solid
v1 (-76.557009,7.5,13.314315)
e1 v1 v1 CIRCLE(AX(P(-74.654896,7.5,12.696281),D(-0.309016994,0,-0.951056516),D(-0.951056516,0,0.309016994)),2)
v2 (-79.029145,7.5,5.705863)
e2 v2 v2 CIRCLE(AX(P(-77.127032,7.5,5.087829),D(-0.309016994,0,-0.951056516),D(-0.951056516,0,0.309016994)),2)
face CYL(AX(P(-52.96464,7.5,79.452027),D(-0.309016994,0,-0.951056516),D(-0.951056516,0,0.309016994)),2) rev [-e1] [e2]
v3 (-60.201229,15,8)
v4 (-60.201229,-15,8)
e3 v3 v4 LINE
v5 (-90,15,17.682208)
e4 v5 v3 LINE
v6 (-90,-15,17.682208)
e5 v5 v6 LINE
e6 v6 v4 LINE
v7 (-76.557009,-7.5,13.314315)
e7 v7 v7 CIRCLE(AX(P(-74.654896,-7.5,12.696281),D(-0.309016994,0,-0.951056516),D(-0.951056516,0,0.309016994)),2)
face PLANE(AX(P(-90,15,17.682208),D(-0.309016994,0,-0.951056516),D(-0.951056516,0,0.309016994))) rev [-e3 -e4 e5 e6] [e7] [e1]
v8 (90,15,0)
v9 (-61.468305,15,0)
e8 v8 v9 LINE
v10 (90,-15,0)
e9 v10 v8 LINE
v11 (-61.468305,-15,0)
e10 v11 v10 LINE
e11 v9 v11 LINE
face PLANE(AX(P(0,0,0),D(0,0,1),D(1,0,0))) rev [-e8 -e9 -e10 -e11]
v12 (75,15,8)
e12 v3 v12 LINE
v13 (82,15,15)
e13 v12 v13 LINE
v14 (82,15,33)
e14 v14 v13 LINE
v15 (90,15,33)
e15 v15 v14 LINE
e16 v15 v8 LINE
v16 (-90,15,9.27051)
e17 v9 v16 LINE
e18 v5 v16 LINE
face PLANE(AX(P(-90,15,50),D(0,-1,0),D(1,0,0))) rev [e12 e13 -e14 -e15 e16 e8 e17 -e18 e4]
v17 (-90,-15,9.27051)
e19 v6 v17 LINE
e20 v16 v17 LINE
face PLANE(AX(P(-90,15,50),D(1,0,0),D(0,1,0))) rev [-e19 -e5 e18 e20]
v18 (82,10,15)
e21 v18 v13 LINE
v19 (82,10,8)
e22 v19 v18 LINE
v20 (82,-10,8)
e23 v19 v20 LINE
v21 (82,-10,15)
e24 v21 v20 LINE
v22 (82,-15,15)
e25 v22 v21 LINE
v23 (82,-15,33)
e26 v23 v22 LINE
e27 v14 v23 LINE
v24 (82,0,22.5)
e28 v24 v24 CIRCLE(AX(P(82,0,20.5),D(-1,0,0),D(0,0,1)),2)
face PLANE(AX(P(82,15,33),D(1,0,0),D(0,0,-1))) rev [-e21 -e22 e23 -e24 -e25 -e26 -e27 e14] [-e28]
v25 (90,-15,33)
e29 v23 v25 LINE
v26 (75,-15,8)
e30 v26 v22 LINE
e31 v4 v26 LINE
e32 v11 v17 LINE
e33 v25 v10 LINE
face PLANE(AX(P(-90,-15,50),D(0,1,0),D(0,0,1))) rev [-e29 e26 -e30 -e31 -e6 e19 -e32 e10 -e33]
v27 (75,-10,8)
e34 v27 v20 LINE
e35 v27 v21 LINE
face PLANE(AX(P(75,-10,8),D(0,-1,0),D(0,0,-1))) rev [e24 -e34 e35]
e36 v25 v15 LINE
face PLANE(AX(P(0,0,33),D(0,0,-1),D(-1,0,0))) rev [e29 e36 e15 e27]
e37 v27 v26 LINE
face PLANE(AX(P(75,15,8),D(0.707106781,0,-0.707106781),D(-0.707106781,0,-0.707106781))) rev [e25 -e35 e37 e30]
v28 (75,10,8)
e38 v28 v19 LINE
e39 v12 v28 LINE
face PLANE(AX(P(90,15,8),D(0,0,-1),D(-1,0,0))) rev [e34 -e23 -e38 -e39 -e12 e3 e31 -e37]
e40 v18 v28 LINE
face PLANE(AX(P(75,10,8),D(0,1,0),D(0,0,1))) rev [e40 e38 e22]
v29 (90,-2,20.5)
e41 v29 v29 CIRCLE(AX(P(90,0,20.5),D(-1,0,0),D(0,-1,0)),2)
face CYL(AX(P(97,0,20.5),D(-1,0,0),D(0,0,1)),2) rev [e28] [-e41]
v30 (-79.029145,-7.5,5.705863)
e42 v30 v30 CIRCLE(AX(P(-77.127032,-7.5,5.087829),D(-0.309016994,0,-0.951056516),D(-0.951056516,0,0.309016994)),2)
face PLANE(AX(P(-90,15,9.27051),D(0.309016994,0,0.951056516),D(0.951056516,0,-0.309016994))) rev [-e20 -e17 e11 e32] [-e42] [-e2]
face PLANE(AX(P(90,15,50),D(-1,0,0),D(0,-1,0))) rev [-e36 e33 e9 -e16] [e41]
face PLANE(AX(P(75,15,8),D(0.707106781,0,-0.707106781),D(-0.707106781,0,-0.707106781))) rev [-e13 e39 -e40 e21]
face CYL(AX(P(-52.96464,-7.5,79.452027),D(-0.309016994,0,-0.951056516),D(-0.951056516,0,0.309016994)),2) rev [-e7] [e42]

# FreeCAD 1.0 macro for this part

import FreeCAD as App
import Part
import Sketcher
Q = App.Units.Quantity

doc = App.newDocument("Part")
body = doc.addObject("PartDesign::Body", "Body")

# Sketch on XY plane
sketch1 = doc.addObject("Sketcher::SketchObject", "Sketch")
body.addObject(sketch1)
sketch1.AttachmentSupport = (doc.XY_Plane, [""])
sketch1.MapMode = "FlatFace"
sketch1.addGeometry(Part.LineSegment(App.Vector(-90, 15, 0), App.Vector(-90, -15, 0)), False)
sketch1.addGeometry(Part.LineSegment(App.Vector(-90, -15, 0), App.Vector(90, -15, 0)), False)
sketch1.addGeometry(Part.LineSegment(App.Vector(90, -15, 0), App.Vector(90, 15, 0)), False)
sketch1.addGeometry(Part.LineSegment(App.Vector(90, 15, 0), App.Vector(-90, 15, 0)), False)
sketch1.addConstraint(Sketcher.Constraint("Coincident", 0, 2, 1, 1))
sketch1.addConstraint(Sketcher.Constraint("Coincident", 1, 2, 2, 1))
sketch1.addConstraint(Sketcher.Constraint("Coincident", 2, 2, 3, 1))
sketch1.addConstraint(Sketcher.Constraint("Coincident", 3, 2, 0, 1))
sketch1.addConstraint(Sketcher.Constraint("Vertical", 0))
sketch1.addConstraint(Sketcher.Constraint("Horizontal", 1))
sketch1.addConstraint(Sketcher.Constraint("Vertical", 2))
sketch1.addConstraint(Sketcher.Constraint("Horizontal", 3))
sketch1.addConstraint(Sketcher.Constraint("Symmetric", 0, 2, 2, 2, -1, 1))
sketch1.addConstraint(Sketcher.Constraint("DistanceX", 1, 1, 1, 2, Q("180 mm")))
sketch1.addConstraint(Sketcher.Constraint("DistanceY", 0, 2, 0, 1, Q("30 mm")))
pad1 = doc.addObject("PartDesign::Pad", "Pad")
body.addObject(pad1)
pad1.Profile = sketch1
pad1.Length = 50

# Sketch on XZ plane
sketch2 = doc.addObject("Sketcher::SketchObject", "Sketch001")
body.addObject(sketch2)
sketch2.AttachmentSupport = (doc.XZ_Plane, [""])
sketch2.MapMode = "FlatFace"
sketch2.AttachmentOffset = App.Placement(App.Vector(0, 0, 15), App.Rotation())
sketch2.addGeometry(Part.LineSegment(App.Vector(-61.468305, 0, 0), App.Vector(-90, 9.27051, 0)), False)
sketch2.addGeometry(Part.LineSegment(App.Vector(-90, 9.27051, 0), App.Vector(-90, 0, 0)), False)
sketch2.addGeometry(Part.LineSegment(App.Vector(-90, 0, 0), App.Vector(-61.468305, 0, 0)), False)
sketch2.addConstraint(Sketcher.Constraint("Coincident", 0, 2, 1, 1))
sketch2.addConstraint(Sketcher.Constraint("Coincident", 1, 2, 2, 1))
sketch2.addConstraint(Sketcher.Constraint("Coincident", 2, 2, 0, 1))
sketch2.addConstraint(Sketcher.Constraint("Vertical", 1))
sketch2.addConstraint(Sketcher.Constraint("Horizontal", 2))
sketch2.addConstraint(Sketcher.Constraint("PointOnObject", 1, 2, -1))
sketch2.addConstraint(Sketcher.Constraint("Angle", 0, Q("162 deg")))
sketch2.addConstraint(Sketcher.Constraint("Distance", 0, Q("30 mm")))
sketch2.addConstraint(Sketcher.Constraint("DistanceX", 0, 2, -1, 1, Q("90 mm")))
pocket1 = doc.addObject("PartDesign::Pocket", "Pocket")
body.addObject(pocket1)
pocket1.Profile = sketch2
pocket1.Type = "ThroughAll"

# Sketch on XZ plane
sketch3 = doc.addObject("Sketcher::SketchObject", "Sketch002")
body.addObject(sketch3)
sketch3.AttachmentSupport = (doc.XZ_Plane, [""])
sketch3.MapMode = "FlatFace"
sketch3.AttachmentOffset = App.Placement(App.Vector(0, 0, 15), App.Rotation())
sketch3.addGeometry(Part.LineSegment(App.Vector(-90, 17.682208, 0), App.Vector(-60.201229, 8, 0)), False)
sketch3.addGeometry(Part.LineSegment(App.Vector(-60.201229, 8, 0), App.Vector(90, 8, 0)), False)
sketch3.addGeometry(Part.LineSegment(App.Vector(90, 8, 0), App.Vector(90, 50, 0)), False)
sketch3.addGeometry(Part.LineSegment(App.Vector(90, 50, 0), App.Vector(-90, 50, 0)), False)
sketch3.addGeometry(Part.LineSegment(App.Vector(-90, 50, 0), App.Vector(-90, 17.682208, 0)), False)
sketch3.addConstraint(Sketcher.Constraint("Coincident", 0, 2, 1, 1))
sketch3.addConstraint(Sketcher.Constraint("Coincident", 1, 2, 2, 1))
sketch3.addConstraint(Sketcher.Constraint("Coincident", 2, 2, 3, 1))
sketch3.addConstraint(Sketcher.Constraint("Coincident", 3, 2, 4, 1))
sketch3.addConstraint(Sketcher.Constraint("Coincident", 4, 2, 0, 1))
sketch3.addConstraint(Sketcher.Constraint("Horizontal", 1))
sketch3.addConstraint(Sketcher.Constraint("Vertical", 2))
sketch3.addConstraint(Sketcher.Constraint("Horizontal", 3))
sketch3.addConstraint(Sketcher.Constraint("Vertical", 4))
sketch3.addConstraint(Sketcher.Constraint("DistanceX", 3, 2, 3, 1, Q("180 mm")))
sketch3.addConstraint(Sketcher.Constraint("DistanceY", 2, 1, 2, 2, Q("42 mm")))
sketch3.addConstraint(Sketcher.Constraint("Angle", 0, Q("-18 deg")))
sketch3.addConstraint(Sketcher.Constraint("DistanceY", -1, 1, 0, 2, Q("8 mm")))
sketch3.addConstraint(Sketcher.Constraint("DistanceX", -1, 1, 1, 2, Q("90 mm")))
sketch3.addConstraint(Sketcher.Constraint("DistanceX", 1, 1, 1, 2, Q("150.201229 mm")))
pocket2 = doc.addObject("PartDesign::Pocket", "Pocket001")
body.addObject(pocket2)
pocket2.Profile = sketch3
pocket2.Type = "ThroughAll"

# Sketch on XY plane
sketch4 = doc.addObject("Sketcher::SketchObject", "Sketch003")
body.addObject(sketch4)
sketch4.AttachmentSupport = (doc.XY_Plane, [""])
sketch4.MapMode = "FlatFace"
sketch4.AttachmentOffset = App.Placement(App.Vector(0, 0, 8), App.Rotation())
sketch4.addGeometry(Part.LineSegment(App.Vector(82, 15, 0), App.Vector(82, -15, 0)), False)
sketch4.addGeometry(Part.LineSegment(App.Vector(82, -15, 0), App.Vector(90, -15, 0)), False)
sketch4.addGeometry(Part.LineSegment(App.Vector(90, -15, 0), App.Vector(90, 15, 0)), False)
sketch4.addGeometry(Part.LineSegment(App.Vector(90, 15, 0), App.Vector(82, 15, 0)), False)
sketch4.addConstraint(Sketcher.Constraint("Coincident", 0, 2, 1, 1))
sketch4.addConstraint(Sketcher.Constraint("Coincident", 1, 2, 2, 1))
sketch4.addConstraint(Sketcher.Constraint("Coincident", 2, 2, 3, 1))
sketch4.addConstraint(Sketcher.Constraint("Coincident", 3, 2, 0, 1))
sketch4.addConstraint(Sketcher.Constraint("Vertical", 0))
sketch4.addConstraint(Sketcher.Constraint("Horizontal", 1))
sketch4.addConstraint(Sketcher.Constraint("Vertical", 2))
sketch4.addConstraint(Sketcher.Constraint("Horizontal", 3))
sketch4.addConstraint(Sketcher.Constraint("DistanceX", 1, 1, 1, 2, Q("8 mm")))
sketch4.addConstraint(Sketcher.Constraint("DistanceY", 0, 2, 0, 1, Q("30 mm")))
sketch4.addConstraint(Sketcher.Constraint("DistanceX", -1, 1, 0, 2, Q("82 mm")))
sketch4.addConstraint(Sketcher.Constraint("DistanceY", 0, 2, -1, 1, Q("15 mm")))
pad2 = doc.addObject("PartDesign::Pad", "Pad001")
body.addObject(pad2)
pad2.Profile = sketch4
pad2.Length = 25

# Sketch on YZ plane
sketch5 = doc.addObject("Sketcher::SketchObject", "Sketch004")
body.addObject(sketch5)
sketch5.AttachmentSupport = (doc.YZ_Plane, [""])
sketch5.MapMode = "FlatFace"
sketch5.AttachmentOffset = App.Placement(App.Vector(0, 0, 82), App.Rotation())
sketch5.addGeometry(Part.LineSegment(App.Vector(-10, 8, 0), App.Vector(-15, 8, 0)), False)
sketch5.addGeometry(Part.LineSegment(App.Vector(-15, 8, 0), App.Vector(-15, 15, 0)), False)
sketch5.addGeometry(Part.LineSegment(App.Vector(-15, 15, 0), App.Vector(-10, 15, 0)), False)
sketch5.addGeometry(Part.LineSegment(App.Vector(-10, 15, 0), App.Vector(-10, 8, 0)), False)
sketch5.addGeometry(Part.LineSegment(App.Vector(15, 8, 0), App.Vector(10, 8, 0)), False)
sketch5.addGeometry(Part.LineSegment(App.Vector(10, 8, 0), App.Vector(10, 15, 0)), False)
sketch5.addGeometry(Part.LineSegment(App.Vector(10, 15, 0), App.Vector(15, 15, 0)), False)
sketch5.addGeometry(Part.LineSegment(App.Vector(15, 15, 0), App.Vector(15, 8, 0)), False)
sketch5.addConstraint(Sketcher.Constraint("Coincident", 0, 2, 1, 1))
sketch5.addConstraint(Sketcher.Constraint("Coincident", 1, 2, 2, 1))
sketch5.addConstraint(Sketcher.Constraint("Coincident", 2, 2, 3, 1))
sketch5.addConstraint(Sketcher.Constraint("Coincident", 3, 2, 0, 1))
sketch5.addConstraint(Sketcher.Constraint("Coincident", 4, 2, 5, 1))
sketch5.addConstraint(Sketcher.Constraint("Coincident", 5, 2, 6, 1))
sketch5.addConstraint(Sketcher.Constraint("Coincident", 6, 2, 7, 1))
sketch5.addConstraint(Sketcher.Constraint("Coincident", 7, 2, 4, 1))
sketch5.addConstraint(Sketcher.Constraint("Horizontal", 0))
sketch5.addConstraint(Sketcher.Constraint("Vertical", 1))
sketch5.addConstraint(Sketcher.Constraint("Horizontal", 2))
sketch5.addConstraint(Sketcher.Constraint("Vertical", 3))
sketch5.addConstraint(Sketcher.Constraint("Horizontal", 4))
sketch5.addConstraint(Sketcher.Constraint("Vertical", 5))
sketch5.addConstraint(Sketcher.Constraint("Horizontal", 6))
sketch5.addConstraint(Sketcher.Constraint("Vertical", 7))
sketch5.addConstraint(Sketcher.Constraint("Symmetric", 3, 2, 4, 2, -2))
sketch5.addConstraint(Sketcher.Constraint("Symmetric", 1, 2, 6, 2, -2))
sketch5.addConstraint(Sketcher.Constraint("DistanceX", 0, 2, 0, 1, Q("5 mm")))
sketch5.addConstraint(Sketcher.Constraint("DistanceY", 1, 1, 1, 2, Q("7 mm")))
sketch5.addConstraint(Sketcher.Constraint("DistanceX", 0, 2, -1, 1, Q("15 mm")))
sketch5.addConstraint(Sketcher.Constraint("DistanceY", -1, 1, 0, 2, Q("8 mm")))
pad3 = doc.addObject("PartDesign::Pad", "Pad002")
body.addObject(pad3)
pad3.Profile = sketch5
pad3.Length = 7
pad3.Reversed = True

# Sketch on XZ plane
sketch6 = doc.addObject("Sketcher::SketchObject", "Sketch005")
body.addObject(sketch6)
sketch6.AttachmentSupport = (doc.XZ_Plane, [""])
sketch6.MapMode = "FlatFace"
sketch6.AttachmentOffset = App.Placement(App.Vector(0, 0, 15), App.Rotation())
sketch6.addGeometry(Part.LineSegment(App.Vector(75, 8, 0), App.Vector(82, 15, 0)), False)
sketch6.addGeometry(Part.LineSegment(App.Vector(82, 15, 0), App.Vector(75, 15, 0)), False)
sketch6.addGeometry(Part.LineSegment(App.Vector(75, 15, 0), App.Vector(75, 8, 0)), False)
sketch6.addConstraint(Sketcher.Constraint("Coincident", 0, 2, 1, 1))
sketch6.addConstraint(Sketcher.Constraint("Coincident", 1, 2, 2, 1))
sketch6.addConstraint(Sketcher.Constraint("Coincident", 2, 2, 0, 1))
sketch6.addConstraint(Sketcher.Constraint("Horizontal", 1))
sketch6.addConstraint(Sketcher.Constraint("Vertical", 2))
sketch6.addConstraint(Sketcher.Constraint("Equal", 1, 2))
sketch6.addConstraint(Sketcher.Constraint("DistanceX", 1, 2, 1, 1, Q("7 mm")))
sketch6.addConstraint(Sketcher.Constraint("DistanceX", -1, 1, 0, 2, Q("82 mm")))
sketch6.addConstraint(Sketcher.Constraint("DistanceY", -1, 1, 0, 2, Q("15 mm")))
pocket3 = doc.addObject("PartDesign::Pocket", "Pocket002")
body.addObject(pocket3)
pocket3.Profile = sketch6
pocket3.Type = "ThroughAll"

# Sketch on YZ plane
sketch7 = doc.addObject("Sketcher::SketchObject", "Sketch006")
body.addObject(sketch7)
sketch7.AttachmentSupport = (doc.YZ_Plane, [""])
sketch7.MapMode = "FlatFace"
sketch7.AttachmentOffset = App.Placement(App.Vector(0, 0, 82), App.Rotation())
sketch7.addGeometry(Part.Circle(App.Vector(0, 20.5, 0), App.Vector(0, 0, 1), 2), False)
sketch7.addConstraint(Sketcher.Constraint("PointOnObject", 0, 3, -2))
sketch7.addConstraint(Sketcher.Constraint("Diameter", 0, Q("4 mm")))
sketch7.addConstraint(Sketcher.Constraint("DistanceY", -1, 1, 0, 3, Q("20.5 mm")))
pocket4 = doc.addObject("PartDesign::Pocket", "Pocket003")
body.addObject(pocket4)
pocket4.Profile = sketch7
pocket4.Length = 15
pocket4.Reversed = True

# Sketch on an angled plane
sketch8 = doc.addObject("Sketcher::SketchObject", "Sketch007")
body.addObject(sketch8)
sketch8.Placement = App.Placement(App.Vector(-5.869701, 0, -18.065081), App.Rotation(App.Vector(-0.951056516, 0, 0.309016994), App.Vector(0, 0.999999999, 0), App.Vector(-0.309016994, 0, -0.951056516), "ZXY"))
sketch8.addGeometry(Part.Circle(App.Vector(74.924392, 7.5, 0), App.Vector(0, 0, 1), 2), False)
sketch8.addGeometry(Part.Circle(App.Vector(74.924392, -7.5, 0), App.Vector(0, 0, 1), 2), False)
sketch8.addConstraint(Sketcher.Constraint("Equal", 0, 1))
sketch8.addConstraint(Sketcher.Constraint("Symmetric", 0, 3, 1, 3, -1))
sketch8.addConstraint(Sketcher.Constraint("Diameter", 0, Q("4 mm")))
sketch8.addConstraint(Sketcher.Constraint("DistanceY", 1, 3, 0, 3, Q("15 mm")))
sketch8.addConstraint(Sketcher.Constraint("DistanceX", -1, 1, 0, 3, Q("74.924392 mm")))
pocket5 = doc.addObject("PartDesign::Pocket", "Pocket004")
body.addObject(pocket5)
pocket5.Profile = sketch8
pocket5.Type = "ThroughAll"

doc.recompute()
